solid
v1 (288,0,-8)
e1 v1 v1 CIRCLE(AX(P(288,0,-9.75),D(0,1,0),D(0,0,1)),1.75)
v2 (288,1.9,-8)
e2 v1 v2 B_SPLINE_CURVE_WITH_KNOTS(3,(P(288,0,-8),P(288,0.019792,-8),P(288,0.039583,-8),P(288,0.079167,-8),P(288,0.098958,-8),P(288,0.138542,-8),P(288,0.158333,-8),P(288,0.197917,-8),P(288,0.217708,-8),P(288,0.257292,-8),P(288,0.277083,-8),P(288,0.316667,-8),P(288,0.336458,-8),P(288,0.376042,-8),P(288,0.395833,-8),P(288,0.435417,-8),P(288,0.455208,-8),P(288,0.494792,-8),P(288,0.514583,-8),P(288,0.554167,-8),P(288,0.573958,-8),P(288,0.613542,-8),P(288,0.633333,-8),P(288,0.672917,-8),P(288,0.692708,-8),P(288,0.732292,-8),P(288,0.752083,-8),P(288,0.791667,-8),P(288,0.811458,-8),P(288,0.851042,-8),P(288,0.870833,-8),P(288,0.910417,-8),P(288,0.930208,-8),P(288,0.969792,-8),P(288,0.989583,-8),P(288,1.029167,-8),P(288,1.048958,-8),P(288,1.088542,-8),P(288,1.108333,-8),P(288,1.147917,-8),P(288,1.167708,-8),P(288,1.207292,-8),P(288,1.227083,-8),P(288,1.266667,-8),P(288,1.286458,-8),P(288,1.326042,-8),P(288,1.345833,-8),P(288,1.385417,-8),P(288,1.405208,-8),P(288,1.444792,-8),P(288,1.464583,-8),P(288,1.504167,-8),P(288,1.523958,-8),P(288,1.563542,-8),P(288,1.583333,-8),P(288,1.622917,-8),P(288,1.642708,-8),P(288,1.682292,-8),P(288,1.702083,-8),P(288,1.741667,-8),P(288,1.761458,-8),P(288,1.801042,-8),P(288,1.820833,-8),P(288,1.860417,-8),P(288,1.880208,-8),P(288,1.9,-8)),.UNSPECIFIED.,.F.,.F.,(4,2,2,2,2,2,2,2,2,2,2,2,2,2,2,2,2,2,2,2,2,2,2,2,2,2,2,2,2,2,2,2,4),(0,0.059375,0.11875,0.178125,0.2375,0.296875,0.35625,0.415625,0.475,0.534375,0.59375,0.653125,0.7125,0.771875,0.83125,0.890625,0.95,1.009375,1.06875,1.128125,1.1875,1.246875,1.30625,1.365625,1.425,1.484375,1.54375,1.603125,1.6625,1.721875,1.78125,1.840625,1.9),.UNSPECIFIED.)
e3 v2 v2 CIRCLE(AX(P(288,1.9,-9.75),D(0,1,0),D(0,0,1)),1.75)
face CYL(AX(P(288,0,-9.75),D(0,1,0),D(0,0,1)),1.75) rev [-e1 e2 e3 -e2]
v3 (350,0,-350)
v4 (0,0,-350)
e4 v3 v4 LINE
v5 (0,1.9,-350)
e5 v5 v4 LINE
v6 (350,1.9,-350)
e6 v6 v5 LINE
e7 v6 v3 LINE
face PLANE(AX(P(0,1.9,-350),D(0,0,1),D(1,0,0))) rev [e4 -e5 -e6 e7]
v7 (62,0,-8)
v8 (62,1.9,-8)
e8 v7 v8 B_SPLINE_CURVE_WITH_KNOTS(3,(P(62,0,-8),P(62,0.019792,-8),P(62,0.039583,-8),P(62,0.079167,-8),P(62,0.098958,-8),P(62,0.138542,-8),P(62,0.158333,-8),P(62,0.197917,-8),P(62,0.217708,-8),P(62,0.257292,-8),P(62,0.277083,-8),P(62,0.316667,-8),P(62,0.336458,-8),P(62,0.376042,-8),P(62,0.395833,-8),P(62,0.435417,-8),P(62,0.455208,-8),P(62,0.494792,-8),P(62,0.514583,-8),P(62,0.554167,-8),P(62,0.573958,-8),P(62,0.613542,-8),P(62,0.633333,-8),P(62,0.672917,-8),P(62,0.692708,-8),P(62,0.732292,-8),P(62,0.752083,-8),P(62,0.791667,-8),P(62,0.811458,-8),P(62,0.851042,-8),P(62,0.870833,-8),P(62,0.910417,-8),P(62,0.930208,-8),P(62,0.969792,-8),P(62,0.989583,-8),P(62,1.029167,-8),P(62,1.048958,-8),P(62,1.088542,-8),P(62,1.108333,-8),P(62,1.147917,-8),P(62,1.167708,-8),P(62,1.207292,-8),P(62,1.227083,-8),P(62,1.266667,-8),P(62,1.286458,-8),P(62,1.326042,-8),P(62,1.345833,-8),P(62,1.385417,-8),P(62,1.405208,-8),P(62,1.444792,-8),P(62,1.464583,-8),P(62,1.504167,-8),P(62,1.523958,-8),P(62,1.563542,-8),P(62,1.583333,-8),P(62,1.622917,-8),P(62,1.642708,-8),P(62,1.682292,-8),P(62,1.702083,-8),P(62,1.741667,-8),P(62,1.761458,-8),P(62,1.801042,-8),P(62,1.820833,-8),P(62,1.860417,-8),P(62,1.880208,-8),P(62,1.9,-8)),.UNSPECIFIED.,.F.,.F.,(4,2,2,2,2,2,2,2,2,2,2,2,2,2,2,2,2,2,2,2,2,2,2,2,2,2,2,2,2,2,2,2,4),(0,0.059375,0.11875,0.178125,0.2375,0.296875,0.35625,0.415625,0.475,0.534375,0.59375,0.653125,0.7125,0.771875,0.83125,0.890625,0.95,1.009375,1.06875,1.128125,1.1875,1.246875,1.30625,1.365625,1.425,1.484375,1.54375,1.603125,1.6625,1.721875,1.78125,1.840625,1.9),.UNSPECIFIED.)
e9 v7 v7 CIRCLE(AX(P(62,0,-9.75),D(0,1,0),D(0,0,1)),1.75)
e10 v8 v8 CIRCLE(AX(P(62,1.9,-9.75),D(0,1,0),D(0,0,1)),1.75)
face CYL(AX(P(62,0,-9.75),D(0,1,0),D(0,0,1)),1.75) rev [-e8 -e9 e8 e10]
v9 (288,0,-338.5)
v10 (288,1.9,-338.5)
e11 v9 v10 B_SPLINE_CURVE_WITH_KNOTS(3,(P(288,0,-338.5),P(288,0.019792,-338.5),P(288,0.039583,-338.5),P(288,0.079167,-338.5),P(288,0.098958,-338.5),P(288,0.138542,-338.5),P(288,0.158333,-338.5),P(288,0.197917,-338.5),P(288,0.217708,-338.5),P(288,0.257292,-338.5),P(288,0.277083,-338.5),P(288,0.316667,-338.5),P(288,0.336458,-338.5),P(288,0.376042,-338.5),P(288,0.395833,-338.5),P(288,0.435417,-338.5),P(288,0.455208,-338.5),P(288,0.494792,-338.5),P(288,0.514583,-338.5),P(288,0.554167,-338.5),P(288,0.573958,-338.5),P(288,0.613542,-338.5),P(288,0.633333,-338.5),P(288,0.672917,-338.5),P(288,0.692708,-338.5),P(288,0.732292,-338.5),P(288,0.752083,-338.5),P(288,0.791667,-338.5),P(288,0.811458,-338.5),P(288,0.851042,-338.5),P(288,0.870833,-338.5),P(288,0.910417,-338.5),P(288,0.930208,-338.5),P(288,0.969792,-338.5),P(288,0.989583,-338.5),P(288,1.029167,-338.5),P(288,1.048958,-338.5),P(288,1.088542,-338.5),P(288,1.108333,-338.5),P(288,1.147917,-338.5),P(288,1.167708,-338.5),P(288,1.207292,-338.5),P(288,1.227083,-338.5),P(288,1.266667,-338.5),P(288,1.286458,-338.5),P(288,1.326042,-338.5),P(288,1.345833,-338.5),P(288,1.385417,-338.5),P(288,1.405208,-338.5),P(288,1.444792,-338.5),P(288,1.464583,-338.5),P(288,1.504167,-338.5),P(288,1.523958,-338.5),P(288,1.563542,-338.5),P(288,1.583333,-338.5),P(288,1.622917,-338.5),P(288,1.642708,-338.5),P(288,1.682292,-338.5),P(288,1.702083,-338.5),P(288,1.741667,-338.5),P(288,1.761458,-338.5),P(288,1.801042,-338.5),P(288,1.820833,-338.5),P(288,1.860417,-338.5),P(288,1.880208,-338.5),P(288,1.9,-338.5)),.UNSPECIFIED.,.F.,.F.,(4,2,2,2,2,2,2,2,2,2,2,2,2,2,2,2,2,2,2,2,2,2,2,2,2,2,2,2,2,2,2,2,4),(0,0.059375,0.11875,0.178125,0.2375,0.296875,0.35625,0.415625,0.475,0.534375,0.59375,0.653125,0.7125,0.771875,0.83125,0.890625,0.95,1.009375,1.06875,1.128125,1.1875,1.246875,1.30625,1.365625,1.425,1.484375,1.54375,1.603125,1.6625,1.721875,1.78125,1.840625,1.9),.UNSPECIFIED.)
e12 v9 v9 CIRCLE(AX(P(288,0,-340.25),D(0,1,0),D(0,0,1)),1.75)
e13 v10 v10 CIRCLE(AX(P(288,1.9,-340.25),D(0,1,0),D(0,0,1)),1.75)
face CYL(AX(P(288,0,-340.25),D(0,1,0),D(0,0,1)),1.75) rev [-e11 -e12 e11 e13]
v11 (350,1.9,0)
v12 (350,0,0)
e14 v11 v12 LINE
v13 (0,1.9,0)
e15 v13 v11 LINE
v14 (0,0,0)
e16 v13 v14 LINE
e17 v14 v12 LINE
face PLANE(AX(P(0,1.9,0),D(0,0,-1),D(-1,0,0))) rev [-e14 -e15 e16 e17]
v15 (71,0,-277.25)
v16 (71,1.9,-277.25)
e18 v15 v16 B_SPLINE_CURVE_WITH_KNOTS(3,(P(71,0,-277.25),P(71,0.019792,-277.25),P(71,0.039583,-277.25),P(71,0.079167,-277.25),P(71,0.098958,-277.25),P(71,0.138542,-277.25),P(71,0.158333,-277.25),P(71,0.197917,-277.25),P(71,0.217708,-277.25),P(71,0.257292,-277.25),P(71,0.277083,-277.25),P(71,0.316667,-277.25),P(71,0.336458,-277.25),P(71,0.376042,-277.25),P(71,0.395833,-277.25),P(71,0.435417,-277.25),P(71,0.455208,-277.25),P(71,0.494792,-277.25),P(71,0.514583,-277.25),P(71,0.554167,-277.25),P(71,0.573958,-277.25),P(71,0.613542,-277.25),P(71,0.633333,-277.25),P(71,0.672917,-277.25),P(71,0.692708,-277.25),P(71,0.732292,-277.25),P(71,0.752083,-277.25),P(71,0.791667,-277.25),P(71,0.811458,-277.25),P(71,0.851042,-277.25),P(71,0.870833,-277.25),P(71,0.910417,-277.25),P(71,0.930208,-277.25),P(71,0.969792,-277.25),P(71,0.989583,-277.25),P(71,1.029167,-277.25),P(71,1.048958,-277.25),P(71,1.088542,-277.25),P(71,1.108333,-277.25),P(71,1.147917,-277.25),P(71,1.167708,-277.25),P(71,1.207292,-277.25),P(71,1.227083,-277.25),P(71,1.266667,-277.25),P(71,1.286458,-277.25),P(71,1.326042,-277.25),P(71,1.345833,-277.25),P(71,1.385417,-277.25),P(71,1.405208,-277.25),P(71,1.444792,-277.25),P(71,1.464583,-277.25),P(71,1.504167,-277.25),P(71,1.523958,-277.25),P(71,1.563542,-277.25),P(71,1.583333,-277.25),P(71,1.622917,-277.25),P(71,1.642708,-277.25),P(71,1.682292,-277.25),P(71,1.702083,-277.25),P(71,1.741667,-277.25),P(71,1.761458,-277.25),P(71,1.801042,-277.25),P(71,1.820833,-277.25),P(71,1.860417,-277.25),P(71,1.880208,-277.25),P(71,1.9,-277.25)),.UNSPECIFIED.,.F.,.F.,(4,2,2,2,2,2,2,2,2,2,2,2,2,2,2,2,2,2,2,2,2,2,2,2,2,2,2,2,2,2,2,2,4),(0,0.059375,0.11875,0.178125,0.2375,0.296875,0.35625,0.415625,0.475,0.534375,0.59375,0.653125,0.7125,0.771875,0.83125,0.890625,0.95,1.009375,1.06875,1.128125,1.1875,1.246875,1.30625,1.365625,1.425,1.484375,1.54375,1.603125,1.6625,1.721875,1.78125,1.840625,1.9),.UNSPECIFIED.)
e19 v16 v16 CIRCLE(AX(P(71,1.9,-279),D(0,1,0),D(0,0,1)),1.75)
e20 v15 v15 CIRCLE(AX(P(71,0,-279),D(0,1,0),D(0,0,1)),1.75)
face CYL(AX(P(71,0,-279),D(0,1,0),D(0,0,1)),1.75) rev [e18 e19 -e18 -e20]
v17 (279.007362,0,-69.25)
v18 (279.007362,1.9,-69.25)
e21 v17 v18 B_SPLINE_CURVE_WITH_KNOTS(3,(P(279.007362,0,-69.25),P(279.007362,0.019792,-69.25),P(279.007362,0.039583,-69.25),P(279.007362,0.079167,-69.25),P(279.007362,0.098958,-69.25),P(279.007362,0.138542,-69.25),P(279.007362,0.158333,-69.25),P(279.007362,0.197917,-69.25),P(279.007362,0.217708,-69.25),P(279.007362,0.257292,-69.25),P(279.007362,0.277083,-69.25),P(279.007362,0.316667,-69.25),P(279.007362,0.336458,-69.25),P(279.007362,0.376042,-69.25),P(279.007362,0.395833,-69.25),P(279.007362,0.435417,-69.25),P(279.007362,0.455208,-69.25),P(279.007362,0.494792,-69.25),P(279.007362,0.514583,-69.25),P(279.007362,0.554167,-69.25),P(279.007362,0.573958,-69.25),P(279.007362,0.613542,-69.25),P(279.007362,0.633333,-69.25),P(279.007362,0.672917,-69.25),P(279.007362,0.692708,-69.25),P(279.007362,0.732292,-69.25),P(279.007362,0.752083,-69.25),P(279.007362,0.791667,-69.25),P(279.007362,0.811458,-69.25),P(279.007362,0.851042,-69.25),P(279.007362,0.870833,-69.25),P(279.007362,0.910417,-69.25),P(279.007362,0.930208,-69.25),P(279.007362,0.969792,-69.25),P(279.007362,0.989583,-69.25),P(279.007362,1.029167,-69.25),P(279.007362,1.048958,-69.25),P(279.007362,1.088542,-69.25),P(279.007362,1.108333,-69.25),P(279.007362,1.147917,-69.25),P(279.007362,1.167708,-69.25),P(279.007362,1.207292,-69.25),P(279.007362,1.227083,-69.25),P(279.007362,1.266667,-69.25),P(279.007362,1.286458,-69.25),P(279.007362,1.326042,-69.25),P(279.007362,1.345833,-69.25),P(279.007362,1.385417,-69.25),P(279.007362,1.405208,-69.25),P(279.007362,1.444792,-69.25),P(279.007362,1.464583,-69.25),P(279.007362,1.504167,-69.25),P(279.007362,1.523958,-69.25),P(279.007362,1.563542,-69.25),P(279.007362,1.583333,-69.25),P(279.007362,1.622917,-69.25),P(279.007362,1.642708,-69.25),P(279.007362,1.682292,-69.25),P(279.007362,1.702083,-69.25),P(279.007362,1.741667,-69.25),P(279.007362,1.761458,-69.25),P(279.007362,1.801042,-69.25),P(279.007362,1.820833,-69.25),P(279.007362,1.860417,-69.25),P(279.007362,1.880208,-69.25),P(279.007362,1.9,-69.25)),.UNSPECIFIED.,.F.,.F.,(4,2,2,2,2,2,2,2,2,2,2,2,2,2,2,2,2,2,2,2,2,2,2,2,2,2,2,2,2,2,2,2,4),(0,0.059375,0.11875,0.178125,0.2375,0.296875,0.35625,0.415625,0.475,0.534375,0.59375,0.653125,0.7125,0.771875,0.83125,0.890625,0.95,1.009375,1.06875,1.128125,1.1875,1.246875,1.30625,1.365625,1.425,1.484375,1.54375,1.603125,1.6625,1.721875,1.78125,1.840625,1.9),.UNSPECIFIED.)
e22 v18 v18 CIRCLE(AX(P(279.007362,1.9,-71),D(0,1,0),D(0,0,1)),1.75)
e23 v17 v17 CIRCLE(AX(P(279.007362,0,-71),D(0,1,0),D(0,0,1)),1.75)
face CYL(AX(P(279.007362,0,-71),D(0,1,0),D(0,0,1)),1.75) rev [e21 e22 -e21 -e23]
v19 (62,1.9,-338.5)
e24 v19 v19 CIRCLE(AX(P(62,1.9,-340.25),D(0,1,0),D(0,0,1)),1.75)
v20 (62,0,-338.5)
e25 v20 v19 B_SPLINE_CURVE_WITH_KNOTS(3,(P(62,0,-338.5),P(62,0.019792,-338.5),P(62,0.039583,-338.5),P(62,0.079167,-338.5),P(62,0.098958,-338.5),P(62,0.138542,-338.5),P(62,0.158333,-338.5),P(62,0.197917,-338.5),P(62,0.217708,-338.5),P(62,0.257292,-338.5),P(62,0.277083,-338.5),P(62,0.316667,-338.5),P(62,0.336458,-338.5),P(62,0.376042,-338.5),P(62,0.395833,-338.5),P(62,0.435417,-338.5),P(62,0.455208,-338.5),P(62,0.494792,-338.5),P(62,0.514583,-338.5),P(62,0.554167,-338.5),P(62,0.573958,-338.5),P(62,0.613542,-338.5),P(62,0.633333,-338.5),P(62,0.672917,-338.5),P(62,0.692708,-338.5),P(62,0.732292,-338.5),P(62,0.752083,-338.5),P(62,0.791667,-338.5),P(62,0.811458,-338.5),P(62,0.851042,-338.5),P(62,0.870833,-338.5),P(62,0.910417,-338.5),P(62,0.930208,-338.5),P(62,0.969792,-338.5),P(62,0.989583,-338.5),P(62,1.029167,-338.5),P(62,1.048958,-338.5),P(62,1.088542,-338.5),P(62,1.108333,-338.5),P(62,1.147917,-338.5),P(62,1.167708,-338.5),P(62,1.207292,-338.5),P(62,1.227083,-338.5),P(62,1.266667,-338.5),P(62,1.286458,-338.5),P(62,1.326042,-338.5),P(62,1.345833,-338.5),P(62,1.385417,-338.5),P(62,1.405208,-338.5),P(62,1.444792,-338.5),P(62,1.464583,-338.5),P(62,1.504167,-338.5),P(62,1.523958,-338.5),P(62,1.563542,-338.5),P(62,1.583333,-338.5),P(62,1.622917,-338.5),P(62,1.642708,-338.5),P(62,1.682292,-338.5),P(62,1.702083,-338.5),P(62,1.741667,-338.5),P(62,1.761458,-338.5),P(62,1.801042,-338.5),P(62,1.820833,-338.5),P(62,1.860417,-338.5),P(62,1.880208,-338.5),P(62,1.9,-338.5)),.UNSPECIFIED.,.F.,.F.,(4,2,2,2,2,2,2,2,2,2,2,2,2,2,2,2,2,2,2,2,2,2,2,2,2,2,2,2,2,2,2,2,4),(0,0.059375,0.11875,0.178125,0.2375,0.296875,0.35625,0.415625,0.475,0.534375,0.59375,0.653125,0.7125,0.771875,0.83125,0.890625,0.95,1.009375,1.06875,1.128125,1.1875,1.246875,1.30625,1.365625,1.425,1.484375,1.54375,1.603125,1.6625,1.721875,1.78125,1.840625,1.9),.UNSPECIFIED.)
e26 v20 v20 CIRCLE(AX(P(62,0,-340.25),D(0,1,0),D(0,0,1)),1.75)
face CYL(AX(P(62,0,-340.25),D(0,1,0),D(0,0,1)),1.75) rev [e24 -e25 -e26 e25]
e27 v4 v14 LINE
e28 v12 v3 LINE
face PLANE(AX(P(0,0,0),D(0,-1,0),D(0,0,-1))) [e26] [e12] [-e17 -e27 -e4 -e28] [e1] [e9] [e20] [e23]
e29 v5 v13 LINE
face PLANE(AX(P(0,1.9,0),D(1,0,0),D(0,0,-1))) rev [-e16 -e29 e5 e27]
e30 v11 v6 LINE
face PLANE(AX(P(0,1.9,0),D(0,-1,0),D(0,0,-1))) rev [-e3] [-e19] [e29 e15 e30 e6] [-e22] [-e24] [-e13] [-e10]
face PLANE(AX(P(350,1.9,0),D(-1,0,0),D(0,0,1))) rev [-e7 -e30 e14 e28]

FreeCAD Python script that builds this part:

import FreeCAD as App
import Part
import Sketcher
from FreeCAD import Vector


def add_polygon(sketch, points):
    """Adds a closed chain of lines whose ends are joined by coincident constraints."""
    first, n = sketch.GeometryCount, len(points)
    for a, b in zip(points, points[1:] + points[:1]):
        sketch.addGeometry(Part.LineSegment(App.Vector(*a, 0), App.Vector(*b, 0)), False)
    for i in range(n):
        sketch.addConstraint(Sketcher.Constraint("Coincident", first + i, 2, first + (i + 1) % n, 1))

doc = App.newDocument("Part")
body = doc.addObject("PartDesign::Body", "Body")

sketch1 = body.newObject("Sketcher::SketchObject", "Sketch")
sketch1.AttachmentSupport = (doc.getObject("XZ_Plane"), [""])
sketch1.MapMode = "FlatFace"
add_polygon(sketch1, [(0, -350), (0, 0), (350, 0), (350, -350)])
sketch1.addConstraint([
    Sketcher.Constraint("Vertical", 0),
    Sketcher.Constraint("Horizontal", 1),
    Sketcher.Constraint("Vertical", 2),
    Sketcher.Constraint("Horizontal", 3),
    Sketcher.Constraint("Coincident", 0, 2, -1, 1),
    Sketcher.Constraint("Equal", 3, 0),
    Sketcher.Constraint("DistanceX", 1, 1, 1, 2, 350.0),
])
pad1 = body.newObject("PartDesign::Pad", "Pad")
pad1.Profile = sketch1
pad1.Length = 1.9
pad1.Reversed = True

sketch2 = body.newObject("Sketcher::SketchObject", "Sketch001")
sketch2.AttachmentSupport = (doc.getObject("XZ_Plane"), [""])
sketch2.MapMode = "FlatFace"
sketch2.AttachmentOffset = App.Placement(Vector(0, 0, -1.9), App.Rotation())
sketch2.addGeometry([
    Part.Circle(Vector(62, -340.2, 0), Vector(0, 0, 1), 1.8),
    Part.Circle(Vector(288, -340.2, 0), Vector(0, 0, 1), 1.8),
    Part.Circle(Vector(62, -9.8, 0), Vector(0, 0, 1), 1.8),
    Part.Circle(Vector(288, -9.8, 0), Vector(0, 0, 1), 1.8),
    Part.Circle(Vector(71, -279, 0), Vector(0, 0, 1), 1.8),
    Part.Circle(Vector(279, -71, 0), Vector(0, 0, 1), 1.8),
], False)
sketch2.addConstraint([
    Sketcher.Constraint("Equal", 0, 1),
    Sketcher.Constraint("Equal", 1, 2),
    Sketcher.Constraint("Equal", 2, 3),
    Sketcher.Constraint("Equal", 3, 4),
    Sketcher.Constraint("Equal", 4, 5),
    Sketcher.Constraint("Horizontal", 0, 3, 1, 3),
    Sketcher.Constraint("Horizontal", 2, 3, 3, 3),
    Sketcher.Constraint("Vertical", 0, 3, 2, 3),
    Sketcher.Constraint("Vertical", 1, 3, 3, 3),
    Sketcher.Constraint("Diameter", 0, 3.5),
    Sketcher.Constraint("DistanceX", -1, 1, 0, 3, 62.0),
    Sketcher.Constraint("DistanceX", -1, 1, 1, 3, 288.0),
    Sketcher.Constraint("DistanceX", -1, 1, 4, 3, 71.0),
    Sketcher.Constraint("DistanceY", 4, 3, -1, 1, 279.0),
    Sketcher.Constraint("DistanceY", 5, 3, -1, 1, 71.0),
    Sketcher.Constraint("DistanceY", 0, 3, 2, 3, 330.5),
    Sketcher.Constraint("DistanceY", 0, 3, -1, 1, 340.25),
    Sketcher.Constraint("DistanceX", -1, 1, 5, 3, 279.007362),
])
pocket1 = body.newObject("PartDesign::Pocket", "Pocket")
pocket1.Profile = sketch2
pocket1.Type = "ThroughAll"
pocket1.Reversed = True

doc.recompute()
